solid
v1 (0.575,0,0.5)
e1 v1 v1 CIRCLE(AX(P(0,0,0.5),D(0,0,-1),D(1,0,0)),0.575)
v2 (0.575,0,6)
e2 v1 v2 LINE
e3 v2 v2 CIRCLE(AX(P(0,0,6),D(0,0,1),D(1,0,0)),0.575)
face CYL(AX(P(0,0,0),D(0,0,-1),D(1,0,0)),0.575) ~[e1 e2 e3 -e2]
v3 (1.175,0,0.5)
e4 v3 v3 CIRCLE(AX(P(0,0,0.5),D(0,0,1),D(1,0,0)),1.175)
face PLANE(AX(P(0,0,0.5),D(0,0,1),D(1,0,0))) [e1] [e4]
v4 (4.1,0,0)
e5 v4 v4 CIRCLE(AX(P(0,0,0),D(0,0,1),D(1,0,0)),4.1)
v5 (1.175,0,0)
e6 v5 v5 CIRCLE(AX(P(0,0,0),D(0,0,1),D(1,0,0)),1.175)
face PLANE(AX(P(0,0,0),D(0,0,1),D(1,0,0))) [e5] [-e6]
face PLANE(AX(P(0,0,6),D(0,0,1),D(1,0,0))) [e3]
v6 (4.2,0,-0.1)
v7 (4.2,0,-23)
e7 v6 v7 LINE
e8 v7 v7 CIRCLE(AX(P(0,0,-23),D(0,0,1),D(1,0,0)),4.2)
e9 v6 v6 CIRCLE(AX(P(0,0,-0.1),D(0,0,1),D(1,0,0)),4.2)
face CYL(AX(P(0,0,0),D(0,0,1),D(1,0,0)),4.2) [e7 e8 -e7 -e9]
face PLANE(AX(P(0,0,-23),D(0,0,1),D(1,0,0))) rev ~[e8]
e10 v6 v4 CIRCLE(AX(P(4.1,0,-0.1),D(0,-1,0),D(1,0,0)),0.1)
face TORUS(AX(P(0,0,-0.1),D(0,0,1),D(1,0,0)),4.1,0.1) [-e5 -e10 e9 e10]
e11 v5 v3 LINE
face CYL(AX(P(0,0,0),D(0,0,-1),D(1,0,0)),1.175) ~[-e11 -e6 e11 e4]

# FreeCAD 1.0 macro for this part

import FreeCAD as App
import Part
import Sketcher
Q = App.Units.Quantity


def edges_at(feature, points):
    """Names of the edges that pass closest to the given points."""
    edges = feature.Shape.Edges
    near = lambda p: min(range(len(edges)), key=lambda i: edges[i].distToShape(Part.Vertex(*p))[0])
    return sorted({f"Edge{near(p) + 1}" for p in points})

doc = App.newDocument("Part")
body = doc.addObject("PartDesign::Body", "Body")

# Sketch on XY plane
sketch1 = body.newObject("Sketcher::SketchObject", "Sketch")
sketch1.AttachmentSupport = (doc.getObject("XY_Plane"), [""])
sketch1.MapMode = "FlatFace"
sketch1.addGeometry(Part.Circle(App.Vector(0, 0, 0), App.Vector(0, 0, 1), 4.2), False)
sketch1.addConstraint([
    Sketcher.Constraint("Coincident", 0, 3, -1, 1),
    Sketcher.Constraint("Diameter", 0, Q("8.4 mm")),
])
pad1 = body.newObject("PartDesign::Pad", "Pad")
pad1.Profile = sketch1
pad1.Length = 23
pad1.Reversed = True

# Sketch on XY plane
sketch2 = body.newObject("Sketcher::SketchObject", "Sketch001")
sketch2.AttachmentSupport = (doc.getObject("XY_Plane"), [""])
sketch2.MapMode = "FlatFace"
sketch2.addGeometry(Part.Circle(App.Vector(0, 0, 0), App.Vector(0, 0, 1), 0.6), False)
sketch2.addConstraint([
    Sketcher.Constraint("Coincident", 0, 3, -1, 1),
    Sketcher.Constraint("Diameter", 0, Q("1.15 mm")),
])
pad2 = body.newObject("PartDesign::Pad", "Pad001")
pad2.Profile = sketch2
pad2.Length = 6
doc.recompute()

fillet = body.newObject("PartDesign::Fillet", "Fillet")
fillet.Base = (pad2, edges_at(pad2, [(-4.2, 0, 0)]))
fillet.Radius = 0.1

# Sketch on XY plane
sketch3 = body.newObject("Sketcher::SketchObject", "Sketch002")
sketch3.AttachmentSupport = (doc.getObject("XY_Plane"), [""])
sketch3.MapMode = "FlatFace"
sketch3.addGeometry(Part.Circle(App.Vector(0, 0, 0), App.Vector(0, 0, 1), 1.2), False)
sketch3.addConstraint([
    Sketcher.Constraint("Coincident", 0, 3, -1, 1),
    Sketcher.Constraint("Diameter", 0, Q("2.35 mm")),
])
pad3 = body.newObject("PartDesign::Pad", "Pad002")
pad3.Profile = sketch3
pad3.Length = 0.5

doc.recompute()
